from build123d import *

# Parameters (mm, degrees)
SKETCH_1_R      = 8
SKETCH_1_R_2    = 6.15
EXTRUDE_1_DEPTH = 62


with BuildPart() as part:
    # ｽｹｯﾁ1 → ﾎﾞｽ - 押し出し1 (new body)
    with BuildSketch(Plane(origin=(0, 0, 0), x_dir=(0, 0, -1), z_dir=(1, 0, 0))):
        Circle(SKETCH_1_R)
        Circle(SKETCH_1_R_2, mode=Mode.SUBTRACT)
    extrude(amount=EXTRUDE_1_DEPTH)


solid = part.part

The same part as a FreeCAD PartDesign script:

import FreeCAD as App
import Part
import Sketcher
from FreeCAD import Vector
Q = App.Units.Quantity

doc = App.newDocument("Part")
params = doc.addObject("Spreadsheet::Sheet", "Params")
for row, (alias, value) in enumerate([
    ("sketch1_diameter", "16 mm"),
    ("sketch1_diameter2", "12.3 mm"),
    ("pad1_length", "62 mm"),
], start=1):
    params.set(f"A{row}", alias)
    params.set(f"B{row}", "=" + value)
    params.setAlias(f"B{row}", alias)

body = doc.addObject("PartDesign::Body", "Body")

# Sketch on YZ plane
sketch1 = doc.addObject("Sketcher::SketchObject", "Sketch")
body.addObject(sketch1)
sketch1.AttachmentSupport = (doc.YZ_Plane, [""])
sketch1.MapMode = "FlatFace"
sketch1.addGeometry([
    Part.Circle(Vector(0, 0, 0), Vector(0, 0, 1), 8),
    Part.Circle(Vector(0, 0, 0), Vector(0, 0, 1), 6),
], False)
sketch1.addConstraint([
    Sketcher.Constraint("Coincident", 0, 3, -1, 1),
    Sketcher.Constraint("Coincident", 1, 3, -1, 1),
    Sketcher.Constraint("Diameter", 0, Q("16 mm")),
    Sketcher.Constraint("Diameter", 1, Q("12.3 mm")),
])
sketch1.setExpression("Constraints[2]", "Params.sketch1_diameter")
sketch1.setExpression("Constraints[3]", "Params.sketch1_diameter2")
pad1 = doc.addObject("PartDesign::Pad", "Pad")
body.addObject(pad1)
pad1.Profile = sketch1
pad1.setExpression("Length", "Params.pad1_length")

doc.recompute()
